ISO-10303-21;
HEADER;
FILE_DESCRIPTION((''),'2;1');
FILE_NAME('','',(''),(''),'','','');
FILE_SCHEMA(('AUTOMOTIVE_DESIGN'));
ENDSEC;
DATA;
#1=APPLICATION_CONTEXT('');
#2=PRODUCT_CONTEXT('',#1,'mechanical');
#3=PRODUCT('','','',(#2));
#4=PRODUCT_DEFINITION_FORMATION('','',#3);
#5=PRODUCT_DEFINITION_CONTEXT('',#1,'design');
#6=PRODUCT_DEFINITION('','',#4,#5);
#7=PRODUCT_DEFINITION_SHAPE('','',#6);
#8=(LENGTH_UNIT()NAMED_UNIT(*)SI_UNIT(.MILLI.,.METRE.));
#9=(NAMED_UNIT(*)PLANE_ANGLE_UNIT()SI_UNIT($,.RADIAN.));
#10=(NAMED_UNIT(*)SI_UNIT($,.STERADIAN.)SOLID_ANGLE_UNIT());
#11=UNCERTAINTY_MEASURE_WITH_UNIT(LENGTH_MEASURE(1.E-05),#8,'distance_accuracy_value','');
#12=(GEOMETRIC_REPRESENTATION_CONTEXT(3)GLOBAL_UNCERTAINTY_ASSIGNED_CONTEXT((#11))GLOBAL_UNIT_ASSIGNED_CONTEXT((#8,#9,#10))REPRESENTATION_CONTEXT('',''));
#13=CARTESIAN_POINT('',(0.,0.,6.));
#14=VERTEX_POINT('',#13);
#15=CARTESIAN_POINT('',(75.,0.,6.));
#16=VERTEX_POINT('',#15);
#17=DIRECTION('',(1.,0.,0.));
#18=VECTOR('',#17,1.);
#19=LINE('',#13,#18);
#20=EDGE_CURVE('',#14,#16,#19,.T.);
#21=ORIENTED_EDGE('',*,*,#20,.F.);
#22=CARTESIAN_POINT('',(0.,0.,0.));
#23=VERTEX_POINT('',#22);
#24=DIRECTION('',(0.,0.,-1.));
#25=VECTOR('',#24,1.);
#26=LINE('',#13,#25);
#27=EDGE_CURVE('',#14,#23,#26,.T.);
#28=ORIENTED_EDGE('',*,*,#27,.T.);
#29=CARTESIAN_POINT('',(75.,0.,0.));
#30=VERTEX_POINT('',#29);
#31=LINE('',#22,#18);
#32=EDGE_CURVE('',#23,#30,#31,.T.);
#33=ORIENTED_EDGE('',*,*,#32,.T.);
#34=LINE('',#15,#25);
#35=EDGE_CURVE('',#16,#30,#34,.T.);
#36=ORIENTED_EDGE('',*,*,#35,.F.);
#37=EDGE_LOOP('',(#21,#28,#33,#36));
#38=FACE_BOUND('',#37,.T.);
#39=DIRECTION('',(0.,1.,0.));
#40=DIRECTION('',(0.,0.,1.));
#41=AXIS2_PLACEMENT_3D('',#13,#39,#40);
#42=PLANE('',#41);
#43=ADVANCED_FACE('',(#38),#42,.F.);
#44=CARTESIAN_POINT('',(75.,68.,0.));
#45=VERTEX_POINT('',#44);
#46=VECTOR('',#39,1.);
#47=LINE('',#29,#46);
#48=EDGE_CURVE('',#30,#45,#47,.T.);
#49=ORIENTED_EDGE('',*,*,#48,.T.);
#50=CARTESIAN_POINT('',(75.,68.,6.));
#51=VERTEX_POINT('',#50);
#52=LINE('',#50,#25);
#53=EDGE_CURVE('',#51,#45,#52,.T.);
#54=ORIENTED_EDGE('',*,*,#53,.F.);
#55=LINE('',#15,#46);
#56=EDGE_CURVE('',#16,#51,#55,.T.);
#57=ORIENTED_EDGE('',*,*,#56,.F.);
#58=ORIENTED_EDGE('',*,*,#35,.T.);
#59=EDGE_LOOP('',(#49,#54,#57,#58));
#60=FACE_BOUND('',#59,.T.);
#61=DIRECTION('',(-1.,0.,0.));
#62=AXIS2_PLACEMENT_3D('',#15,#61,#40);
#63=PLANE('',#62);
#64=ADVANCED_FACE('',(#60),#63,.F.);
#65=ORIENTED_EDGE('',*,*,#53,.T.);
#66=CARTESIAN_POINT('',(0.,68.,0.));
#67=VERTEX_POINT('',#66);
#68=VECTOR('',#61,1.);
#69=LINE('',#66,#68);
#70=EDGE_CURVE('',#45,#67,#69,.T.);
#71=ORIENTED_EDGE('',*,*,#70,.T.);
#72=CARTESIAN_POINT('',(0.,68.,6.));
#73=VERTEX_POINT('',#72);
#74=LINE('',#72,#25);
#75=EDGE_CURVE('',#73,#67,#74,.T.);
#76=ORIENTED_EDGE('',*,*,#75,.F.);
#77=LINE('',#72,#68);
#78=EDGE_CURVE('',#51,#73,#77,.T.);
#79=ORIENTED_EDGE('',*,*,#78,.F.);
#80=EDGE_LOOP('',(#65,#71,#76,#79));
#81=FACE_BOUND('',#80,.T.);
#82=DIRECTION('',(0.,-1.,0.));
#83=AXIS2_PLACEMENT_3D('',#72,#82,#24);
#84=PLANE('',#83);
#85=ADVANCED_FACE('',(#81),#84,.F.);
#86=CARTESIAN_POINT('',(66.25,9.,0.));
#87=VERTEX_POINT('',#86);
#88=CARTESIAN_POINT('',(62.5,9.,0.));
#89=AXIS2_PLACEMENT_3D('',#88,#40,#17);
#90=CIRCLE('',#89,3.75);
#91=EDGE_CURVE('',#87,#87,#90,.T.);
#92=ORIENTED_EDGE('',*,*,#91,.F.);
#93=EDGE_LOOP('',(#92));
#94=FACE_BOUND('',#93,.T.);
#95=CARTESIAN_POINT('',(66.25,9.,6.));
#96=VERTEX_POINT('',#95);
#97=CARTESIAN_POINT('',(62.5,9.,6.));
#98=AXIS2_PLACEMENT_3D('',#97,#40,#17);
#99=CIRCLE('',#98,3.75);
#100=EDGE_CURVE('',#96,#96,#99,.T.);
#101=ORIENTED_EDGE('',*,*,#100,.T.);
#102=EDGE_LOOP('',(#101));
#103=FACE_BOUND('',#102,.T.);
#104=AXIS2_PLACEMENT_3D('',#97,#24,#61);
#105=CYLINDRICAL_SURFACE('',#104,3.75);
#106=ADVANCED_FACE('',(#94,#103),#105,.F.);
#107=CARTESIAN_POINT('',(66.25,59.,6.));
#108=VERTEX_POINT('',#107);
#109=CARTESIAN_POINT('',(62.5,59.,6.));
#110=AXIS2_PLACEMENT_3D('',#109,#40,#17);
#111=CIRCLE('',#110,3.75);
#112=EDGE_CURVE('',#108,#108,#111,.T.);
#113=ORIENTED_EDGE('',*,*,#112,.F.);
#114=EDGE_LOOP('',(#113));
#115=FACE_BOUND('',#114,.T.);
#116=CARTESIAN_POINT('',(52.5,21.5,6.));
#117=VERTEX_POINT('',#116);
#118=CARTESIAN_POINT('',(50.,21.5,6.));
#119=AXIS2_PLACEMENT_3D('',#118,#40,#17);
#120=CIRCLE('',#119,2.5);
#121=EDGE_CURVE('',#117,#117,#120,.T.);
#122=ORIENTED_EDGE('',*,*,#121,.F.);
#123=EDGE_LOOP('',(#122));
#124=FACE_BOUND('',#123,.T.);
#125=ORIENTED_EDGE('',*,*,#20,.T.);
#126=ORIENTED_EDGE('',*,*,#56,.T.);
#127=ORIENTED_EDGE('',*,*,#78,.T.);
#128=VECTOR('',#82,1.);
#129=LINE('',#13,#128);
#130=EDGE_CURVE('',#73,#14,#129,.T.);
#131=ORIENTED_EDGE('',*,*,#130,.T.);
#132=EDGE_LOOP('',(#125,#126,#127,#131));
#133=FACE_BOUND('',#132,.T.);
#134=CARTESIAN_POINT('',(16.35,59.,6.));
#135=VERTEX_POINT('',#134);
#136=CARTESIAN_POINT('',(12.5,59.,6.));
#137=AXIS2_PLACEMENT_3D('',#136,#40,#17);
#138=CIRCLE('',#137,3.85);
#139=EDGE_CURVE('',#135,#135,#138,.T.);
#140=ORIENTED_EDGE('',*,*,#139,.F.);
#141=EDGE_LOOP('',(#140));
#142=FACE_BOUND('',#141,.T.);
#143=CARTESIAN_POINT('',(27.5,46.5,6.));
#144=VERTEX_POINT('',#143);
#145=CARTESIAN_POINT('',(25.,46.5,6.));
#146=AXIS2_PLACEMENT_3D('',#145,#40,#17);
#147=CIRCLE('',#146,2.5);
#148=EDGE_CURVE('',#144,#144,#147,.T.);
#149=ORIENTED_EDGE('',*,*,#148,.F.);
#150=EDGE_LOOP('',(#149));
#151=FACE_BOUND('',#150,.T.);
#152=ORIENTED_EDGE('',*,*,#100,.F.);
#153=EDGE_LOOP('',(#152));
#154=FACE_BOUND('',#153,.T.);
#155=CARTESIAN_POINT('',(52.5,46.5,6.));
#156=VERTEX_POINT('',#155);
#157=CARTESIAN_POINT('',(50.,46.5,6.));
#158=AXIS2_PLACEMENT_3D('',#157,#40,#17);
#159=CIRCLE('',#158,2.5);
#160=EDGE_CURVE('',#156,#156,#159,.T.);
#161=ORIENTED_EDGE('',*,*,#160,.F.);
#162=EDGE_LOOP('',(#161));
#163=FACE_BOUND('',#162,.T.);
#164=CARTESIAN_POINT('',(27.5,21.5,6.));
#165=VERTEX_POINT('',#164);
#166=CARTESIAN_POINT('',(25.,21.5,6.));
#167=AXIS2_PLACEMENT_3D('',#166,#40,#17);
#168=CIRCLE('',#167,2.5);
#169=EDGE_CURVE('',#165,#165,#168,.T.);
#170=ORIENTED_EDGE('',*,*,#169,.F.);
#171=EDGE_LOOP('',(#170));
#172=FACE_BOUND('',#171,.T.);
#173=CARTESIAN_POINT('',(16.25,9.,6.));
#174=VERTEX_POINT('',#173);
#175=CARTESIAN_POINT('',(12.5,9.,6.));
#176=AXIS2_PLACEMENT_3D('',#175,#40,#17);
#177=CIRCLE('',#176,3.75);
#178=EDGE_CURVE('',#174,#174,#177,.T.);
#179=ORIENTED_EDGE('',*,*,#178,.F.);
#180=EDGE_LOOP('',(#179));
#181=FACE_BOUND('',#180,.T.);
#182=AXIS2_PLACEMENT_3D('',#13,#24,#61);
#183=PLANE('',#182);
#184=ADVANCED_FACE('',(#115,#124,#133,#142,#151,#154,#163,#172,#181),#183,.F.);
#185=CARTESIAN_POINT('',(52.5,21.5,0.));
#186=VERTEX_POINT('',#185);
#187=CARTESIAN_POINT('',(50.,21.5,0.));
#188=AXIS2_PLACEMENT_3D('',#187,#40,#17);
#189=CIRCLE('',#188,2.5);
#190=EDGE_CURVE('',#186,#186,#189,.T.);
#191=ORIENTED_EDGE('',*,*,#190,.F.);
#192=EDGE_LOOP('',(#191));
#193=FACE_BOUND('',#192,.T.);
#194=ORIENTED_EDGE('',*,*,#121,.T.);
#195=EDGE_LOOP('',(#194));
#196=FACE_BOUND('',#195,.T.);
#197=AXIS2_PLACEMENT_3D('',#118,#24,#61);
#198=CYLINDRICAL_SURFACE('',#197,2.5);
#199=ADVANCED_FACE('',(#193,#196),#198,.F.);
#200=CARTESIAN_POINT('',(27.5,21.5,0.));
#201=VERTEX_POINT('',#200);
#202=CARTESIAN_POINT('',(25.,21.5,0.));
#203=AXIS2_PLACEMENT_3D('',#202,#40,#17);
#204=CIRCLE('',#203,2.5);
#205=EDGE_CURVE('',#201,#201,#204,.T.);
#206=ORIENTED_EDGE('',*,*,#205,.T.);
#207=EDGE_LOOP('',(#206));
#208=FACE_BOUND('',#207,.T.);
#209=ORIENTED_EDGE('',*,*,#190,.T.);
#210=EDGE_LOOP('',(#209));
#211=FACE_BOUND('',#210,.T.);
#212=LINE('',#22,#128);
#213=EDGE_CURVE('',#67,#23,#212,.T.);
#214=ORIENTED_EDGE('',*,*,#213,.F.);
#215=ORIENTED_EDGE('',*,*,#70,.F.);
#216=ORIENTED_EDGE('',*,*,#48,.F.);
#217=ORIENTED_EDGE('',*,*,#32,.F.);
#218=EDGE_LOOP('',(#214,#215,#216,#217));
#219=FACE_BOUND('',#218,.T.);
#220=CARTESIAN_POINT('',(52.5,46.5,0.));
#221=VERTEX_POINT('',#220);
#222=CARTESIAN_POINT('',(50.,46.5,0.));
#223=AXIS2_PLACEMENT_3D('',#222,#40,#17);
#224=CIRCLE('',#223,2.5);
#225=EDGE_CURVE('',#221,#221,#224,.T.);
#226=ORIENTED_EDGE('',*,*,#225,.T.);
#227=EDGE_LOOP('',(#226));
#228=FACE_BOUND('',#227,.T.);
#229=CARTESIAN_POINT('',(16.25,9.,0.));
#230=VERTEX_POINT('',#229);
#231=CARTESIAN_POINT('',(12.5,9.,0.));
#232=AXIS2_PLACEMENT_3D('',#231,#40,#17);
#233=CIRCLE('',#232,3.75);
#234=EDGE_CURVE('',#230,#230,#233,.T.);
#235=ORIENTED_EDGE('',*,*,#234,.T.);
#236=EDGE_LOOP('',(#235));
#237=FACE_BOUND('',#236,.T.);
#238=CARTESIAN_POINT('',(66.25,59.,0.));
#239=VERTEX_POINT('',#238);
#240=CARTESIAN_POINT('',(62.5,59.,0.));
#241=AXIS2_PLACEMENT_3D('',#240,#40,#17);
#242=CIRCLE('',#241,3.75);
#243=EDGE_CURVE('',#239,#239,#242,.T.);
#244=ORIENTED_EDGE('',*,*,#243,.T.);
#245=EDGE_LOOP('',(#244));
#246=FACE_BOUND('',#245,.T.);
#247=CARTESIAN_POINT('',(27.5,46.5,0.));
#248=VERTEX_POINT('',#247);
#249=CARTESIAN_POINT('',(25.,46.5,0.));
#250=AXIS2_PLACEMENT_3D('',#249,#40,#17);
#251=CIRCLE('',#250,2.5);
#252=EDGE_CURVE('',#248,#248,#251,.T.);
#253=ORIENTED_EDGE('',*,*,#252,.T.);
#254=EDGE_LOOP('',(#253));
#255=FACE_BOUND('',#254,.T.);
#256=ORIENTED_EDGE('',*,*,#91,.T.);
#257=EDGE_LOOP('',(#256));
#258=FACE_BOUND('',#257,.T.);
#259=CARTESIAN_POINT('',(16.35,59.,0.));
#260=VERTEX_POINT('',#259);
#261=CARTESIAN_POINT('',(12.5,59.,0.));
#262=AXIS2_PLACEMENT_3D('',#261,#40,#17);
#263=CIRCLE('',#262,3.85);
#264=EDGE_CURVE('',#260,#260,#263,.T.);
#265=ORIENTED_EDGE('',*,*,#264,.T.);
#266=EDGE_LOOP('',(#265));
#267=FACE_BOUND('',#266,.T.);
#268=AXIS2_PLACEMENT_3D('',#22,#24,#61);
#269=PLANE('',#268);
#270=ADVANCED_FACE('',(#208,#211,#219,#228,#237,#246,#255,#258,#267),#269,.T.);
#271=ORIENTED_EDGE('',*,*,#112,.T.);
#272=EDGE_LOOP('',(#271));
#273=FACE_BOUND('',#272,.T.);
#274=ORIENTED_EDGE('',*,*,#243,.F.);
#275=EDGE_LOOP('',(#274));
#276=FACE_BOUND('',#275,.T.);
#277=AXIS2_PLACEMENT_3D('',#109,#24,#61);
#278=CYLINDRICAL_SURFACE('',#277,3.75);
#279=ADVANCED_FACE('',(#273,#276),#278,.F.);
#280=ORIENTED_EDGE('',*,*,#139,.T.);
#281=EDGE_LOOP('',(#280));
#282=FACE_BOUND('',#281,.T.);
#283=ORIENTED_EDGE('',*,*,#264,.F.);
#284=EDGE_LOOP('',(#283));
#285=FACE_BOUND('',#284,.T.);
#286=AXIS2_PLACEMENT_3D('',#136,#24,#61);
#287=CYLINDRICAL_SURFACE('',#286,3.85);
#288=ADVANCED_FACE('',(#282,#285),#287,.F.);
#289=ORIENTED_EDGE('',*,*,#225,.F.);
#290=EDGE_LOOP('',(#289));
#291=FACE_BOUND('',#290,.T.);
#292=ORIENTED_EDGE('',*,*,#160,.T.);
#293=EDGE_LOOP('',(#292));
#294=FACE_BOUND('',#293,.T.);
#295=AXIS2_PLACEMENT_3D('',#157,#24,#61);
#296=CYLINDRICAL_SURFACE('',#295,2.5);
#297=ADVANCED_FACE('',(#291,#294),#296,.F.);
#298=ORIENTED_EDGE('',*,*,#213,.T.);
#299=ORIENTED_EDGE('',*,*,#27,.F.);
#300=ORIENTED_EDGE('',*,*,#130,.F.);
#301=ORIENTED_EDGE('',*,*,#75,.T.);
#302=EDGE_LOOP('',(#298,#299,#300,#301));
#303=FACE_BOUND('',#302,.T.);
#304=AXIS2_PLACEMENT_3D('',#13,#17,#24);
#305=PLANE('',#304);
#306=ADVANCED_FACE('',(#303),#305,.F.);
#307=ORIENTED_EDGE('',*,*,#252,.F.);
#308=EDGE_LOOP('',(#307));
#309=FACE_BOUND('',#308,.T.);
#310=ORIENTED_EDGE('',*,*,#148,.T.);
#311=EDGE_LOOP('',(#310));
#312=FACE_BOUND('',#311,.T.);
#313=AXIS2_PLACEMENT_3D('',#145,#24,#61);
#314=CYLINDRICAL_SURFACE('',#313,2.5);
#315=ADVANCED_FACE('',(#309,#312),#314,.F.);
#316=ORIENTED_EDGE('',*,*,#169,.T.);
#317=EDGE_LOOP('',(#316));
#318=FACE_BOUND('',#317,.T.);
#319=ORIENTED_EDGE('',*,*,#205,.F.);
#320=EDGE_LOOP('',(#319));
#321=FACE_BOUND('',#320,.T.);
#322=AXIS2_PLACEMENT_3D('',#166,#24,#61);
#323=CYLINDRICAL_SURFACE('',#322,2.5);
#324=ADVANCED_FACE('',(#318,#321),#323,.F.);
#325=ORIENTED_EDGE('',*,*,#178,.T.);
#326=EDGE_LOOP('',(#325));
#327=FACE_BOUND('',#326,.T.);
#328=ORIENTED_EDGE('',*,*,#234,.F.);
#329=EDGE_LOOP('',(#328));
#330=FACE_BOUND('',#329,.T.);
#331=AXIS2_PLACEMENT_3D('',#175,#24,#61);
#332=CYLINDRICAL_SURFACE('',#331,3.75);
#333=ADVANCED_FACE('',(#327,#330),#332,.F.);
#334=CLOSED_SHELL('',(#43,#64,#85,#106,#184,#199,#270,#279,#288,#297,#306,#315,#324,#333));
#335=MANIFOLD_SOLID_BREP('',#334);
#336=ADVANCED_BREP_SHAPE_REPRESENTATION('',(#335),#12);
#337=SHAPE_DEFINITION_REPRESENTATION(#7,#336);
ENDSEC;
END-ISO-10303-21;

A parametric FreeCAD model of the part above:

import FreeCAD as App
import Part
import Sketcher

V = App.Vector

doc = App.newDocument("Part")
body = doc.addObject("PartDesign::Body", "Body")

# Sketch on XY plane
sketch1 = body.newObject("Sketcher::SketchObject", "Sketch")
sketch1.AttachmentSupport = (doc.getObject("XY_Plane"), [""])
sketch1.MapMode = "FlatFace"
sketch1.addGeometry(Part.LineSegment(V(0, 68, 0), V(0, 0, 0)), False)
sketch1.addGeometry(Part.LineSegment(V(0, 0, 0), V(75, 0, 0)), False)
sketch1.addGeometry(Part.LineSegment(V(75, 0, 0), V(75, 68, 0)), False)
sketch1.addGeometry(Part.LineSegment(V(75, 68, 0), V(0, 68, 0)), False)
sketch1.addGeometry(Part.Circle(V(12.5, 9, 0), V(0, 0, 1), 3.8), False)
sketch1.addGeometry(Part.Circle(V(25, 21.5, 0), V(0, 0, 1), 2.5), False)
sketch1.addGeometry(Part.Circle(V(62.5, 9, 0), V(0, 0, 1), 3.8), False)
sketch1.addGeometry(Part.Circle(V(50, 21.5, 0), V(0, 0, 1), 2.5), False)
sketch1.addGeometry(Part.Circle(V(25, 46.5, 0), V(0, 0, 1), 2.5), False)
sketch1.addGeometry(Part.Circle(V(12.5, 59, 0), V(0, 0, 1), 3.9), False)
sketch1.addGeometry(Part.Circle(V(50, 46.5, 0), V(0, 0, 1), 2.5), False)
sketch1.addGeometry(Part.Circle(V(62.5, 59, 0), V(0, 0, 1), 3.8), False)
sketch1.addConstraint(Sketcher.Constraint("Coincident", 0, 2, 1, 1))
sketch1.addConstraint(Sketcher.Constraint("Coincident", 1, 2, 2, 1))
sketch1.addConstraint(Sketcher.Constraint("Coincident", 2, 2, 3, 1))
sketch1.addConstraint(Sketcher.Constraint("Coincident", 3, 2, 0, 1))
sketch1.addConstraint(Sketcher.Constraint("Vertical", 0))
sketch1.addConstraint(Sketcher.Constraint("Horizontal", 1))
sketch1.addConstraint(Sketcher.Constraint("Vertical", 2))
sketch1.addConstraint(Sketcher.Constraint("Horizontal", 3))
sketch1.addConstraint(Sketcher.Constraint("Coincident", 0, 2, -1, 1))
sketch1.addConstraint(Sketcher.Constraint("Equal", 4, 6))
sketch1.addConstraint(Sketcher.Constraint("Equal", 5, 7))
sketch1.addConstraint(Sketcher.Constraint("Equal", 7, 8))
sketch1.addConstraint(Sketcher.Constraint("Equal", 8, 10))
sketch1.addConstraint(Sketcher.Constraint("Equal", 6, 11))
sketch1.addConstraint(Sketcher.Constraint("Horizontal", 4, 3, 6, 3))
sketch1.addConstraint(Sketcher.Constraint("Horizontal", 5, 3, 7, 3))
sketch1.addConstraint(Sketcher.Constraint("Horizontal", 8, 3, 10, 3))
sketch1.addConstraint(Sketcher.Constraint("Horizontal", 9, 3, 11, 3))
sketch1.addConstraint(Sketcher.Constraint("Vertical", 5, 3, 8, 3))
sketch1.addConstraint(Sketcher.Constraint("Vertical", 4, 3, 9, 3))
sketch1.addConstraint(Sketcher.Constraint("Vertical", 7, 3, 10, 3))
sketch1.addConstraint(Sketcher.Constraint("Vertical", 6, 3, 11, 3))
sketch1.addConstraint(Sketcher.Constraint("Diameter", 5, 5.0))
sketch1.addConstraint(Sketcher.Constraint("Diameter", 4, 7.5))
sketch1.addConstraint(Sketcher.Constraint("Diameter", 9, 7.7))
sketch1.addConstraint(Sketcher.Constraint("DistanceX", 1, 1, 1, 2, 75.0))
sketch1.addConstraint(Sketcher.Constraint("DistanceY", 0, 2, 0, 1, 68.0))
sketch1.addConstraint(Sketcher.Constraint("DistanceY", -1, 1, 4, 3, 9.0))
sketch1.addConstraint(Sketcher.Constraint("DistanceX", -1, 1, 5, 3, 25.0))
sketch1.addConstraint(Sketcher.Constraint("DistanceX", -1, 1, 7, 3, 50.0))
sketch1.addConstraint(Sketcher.Constraint("DistanceY", -1, 1, 9, 3, 59.0))
sketch1.addConstraint(Sketcher.Constraint("DistanceX", 4, 3, 6, 3, 50.0))
sketch1.addConstraint(Sketcher.Constraint("DistanceY", 5, 3, 8, 3, 25.0))
sketch1.addConstraint(Sketcher.Constraint("DistanceX", -1, 1, 4, 3, 12.5))
sketch1.addConstraint(Sketcher.Constraint("DistanceY", -1, 1, 5, 3, 21.5))
pad1 = body.newObject("PartDesign::Pad", "Pad")
pad1.Profile = sketch1
pad1.Length = 6

doc.recompute()
